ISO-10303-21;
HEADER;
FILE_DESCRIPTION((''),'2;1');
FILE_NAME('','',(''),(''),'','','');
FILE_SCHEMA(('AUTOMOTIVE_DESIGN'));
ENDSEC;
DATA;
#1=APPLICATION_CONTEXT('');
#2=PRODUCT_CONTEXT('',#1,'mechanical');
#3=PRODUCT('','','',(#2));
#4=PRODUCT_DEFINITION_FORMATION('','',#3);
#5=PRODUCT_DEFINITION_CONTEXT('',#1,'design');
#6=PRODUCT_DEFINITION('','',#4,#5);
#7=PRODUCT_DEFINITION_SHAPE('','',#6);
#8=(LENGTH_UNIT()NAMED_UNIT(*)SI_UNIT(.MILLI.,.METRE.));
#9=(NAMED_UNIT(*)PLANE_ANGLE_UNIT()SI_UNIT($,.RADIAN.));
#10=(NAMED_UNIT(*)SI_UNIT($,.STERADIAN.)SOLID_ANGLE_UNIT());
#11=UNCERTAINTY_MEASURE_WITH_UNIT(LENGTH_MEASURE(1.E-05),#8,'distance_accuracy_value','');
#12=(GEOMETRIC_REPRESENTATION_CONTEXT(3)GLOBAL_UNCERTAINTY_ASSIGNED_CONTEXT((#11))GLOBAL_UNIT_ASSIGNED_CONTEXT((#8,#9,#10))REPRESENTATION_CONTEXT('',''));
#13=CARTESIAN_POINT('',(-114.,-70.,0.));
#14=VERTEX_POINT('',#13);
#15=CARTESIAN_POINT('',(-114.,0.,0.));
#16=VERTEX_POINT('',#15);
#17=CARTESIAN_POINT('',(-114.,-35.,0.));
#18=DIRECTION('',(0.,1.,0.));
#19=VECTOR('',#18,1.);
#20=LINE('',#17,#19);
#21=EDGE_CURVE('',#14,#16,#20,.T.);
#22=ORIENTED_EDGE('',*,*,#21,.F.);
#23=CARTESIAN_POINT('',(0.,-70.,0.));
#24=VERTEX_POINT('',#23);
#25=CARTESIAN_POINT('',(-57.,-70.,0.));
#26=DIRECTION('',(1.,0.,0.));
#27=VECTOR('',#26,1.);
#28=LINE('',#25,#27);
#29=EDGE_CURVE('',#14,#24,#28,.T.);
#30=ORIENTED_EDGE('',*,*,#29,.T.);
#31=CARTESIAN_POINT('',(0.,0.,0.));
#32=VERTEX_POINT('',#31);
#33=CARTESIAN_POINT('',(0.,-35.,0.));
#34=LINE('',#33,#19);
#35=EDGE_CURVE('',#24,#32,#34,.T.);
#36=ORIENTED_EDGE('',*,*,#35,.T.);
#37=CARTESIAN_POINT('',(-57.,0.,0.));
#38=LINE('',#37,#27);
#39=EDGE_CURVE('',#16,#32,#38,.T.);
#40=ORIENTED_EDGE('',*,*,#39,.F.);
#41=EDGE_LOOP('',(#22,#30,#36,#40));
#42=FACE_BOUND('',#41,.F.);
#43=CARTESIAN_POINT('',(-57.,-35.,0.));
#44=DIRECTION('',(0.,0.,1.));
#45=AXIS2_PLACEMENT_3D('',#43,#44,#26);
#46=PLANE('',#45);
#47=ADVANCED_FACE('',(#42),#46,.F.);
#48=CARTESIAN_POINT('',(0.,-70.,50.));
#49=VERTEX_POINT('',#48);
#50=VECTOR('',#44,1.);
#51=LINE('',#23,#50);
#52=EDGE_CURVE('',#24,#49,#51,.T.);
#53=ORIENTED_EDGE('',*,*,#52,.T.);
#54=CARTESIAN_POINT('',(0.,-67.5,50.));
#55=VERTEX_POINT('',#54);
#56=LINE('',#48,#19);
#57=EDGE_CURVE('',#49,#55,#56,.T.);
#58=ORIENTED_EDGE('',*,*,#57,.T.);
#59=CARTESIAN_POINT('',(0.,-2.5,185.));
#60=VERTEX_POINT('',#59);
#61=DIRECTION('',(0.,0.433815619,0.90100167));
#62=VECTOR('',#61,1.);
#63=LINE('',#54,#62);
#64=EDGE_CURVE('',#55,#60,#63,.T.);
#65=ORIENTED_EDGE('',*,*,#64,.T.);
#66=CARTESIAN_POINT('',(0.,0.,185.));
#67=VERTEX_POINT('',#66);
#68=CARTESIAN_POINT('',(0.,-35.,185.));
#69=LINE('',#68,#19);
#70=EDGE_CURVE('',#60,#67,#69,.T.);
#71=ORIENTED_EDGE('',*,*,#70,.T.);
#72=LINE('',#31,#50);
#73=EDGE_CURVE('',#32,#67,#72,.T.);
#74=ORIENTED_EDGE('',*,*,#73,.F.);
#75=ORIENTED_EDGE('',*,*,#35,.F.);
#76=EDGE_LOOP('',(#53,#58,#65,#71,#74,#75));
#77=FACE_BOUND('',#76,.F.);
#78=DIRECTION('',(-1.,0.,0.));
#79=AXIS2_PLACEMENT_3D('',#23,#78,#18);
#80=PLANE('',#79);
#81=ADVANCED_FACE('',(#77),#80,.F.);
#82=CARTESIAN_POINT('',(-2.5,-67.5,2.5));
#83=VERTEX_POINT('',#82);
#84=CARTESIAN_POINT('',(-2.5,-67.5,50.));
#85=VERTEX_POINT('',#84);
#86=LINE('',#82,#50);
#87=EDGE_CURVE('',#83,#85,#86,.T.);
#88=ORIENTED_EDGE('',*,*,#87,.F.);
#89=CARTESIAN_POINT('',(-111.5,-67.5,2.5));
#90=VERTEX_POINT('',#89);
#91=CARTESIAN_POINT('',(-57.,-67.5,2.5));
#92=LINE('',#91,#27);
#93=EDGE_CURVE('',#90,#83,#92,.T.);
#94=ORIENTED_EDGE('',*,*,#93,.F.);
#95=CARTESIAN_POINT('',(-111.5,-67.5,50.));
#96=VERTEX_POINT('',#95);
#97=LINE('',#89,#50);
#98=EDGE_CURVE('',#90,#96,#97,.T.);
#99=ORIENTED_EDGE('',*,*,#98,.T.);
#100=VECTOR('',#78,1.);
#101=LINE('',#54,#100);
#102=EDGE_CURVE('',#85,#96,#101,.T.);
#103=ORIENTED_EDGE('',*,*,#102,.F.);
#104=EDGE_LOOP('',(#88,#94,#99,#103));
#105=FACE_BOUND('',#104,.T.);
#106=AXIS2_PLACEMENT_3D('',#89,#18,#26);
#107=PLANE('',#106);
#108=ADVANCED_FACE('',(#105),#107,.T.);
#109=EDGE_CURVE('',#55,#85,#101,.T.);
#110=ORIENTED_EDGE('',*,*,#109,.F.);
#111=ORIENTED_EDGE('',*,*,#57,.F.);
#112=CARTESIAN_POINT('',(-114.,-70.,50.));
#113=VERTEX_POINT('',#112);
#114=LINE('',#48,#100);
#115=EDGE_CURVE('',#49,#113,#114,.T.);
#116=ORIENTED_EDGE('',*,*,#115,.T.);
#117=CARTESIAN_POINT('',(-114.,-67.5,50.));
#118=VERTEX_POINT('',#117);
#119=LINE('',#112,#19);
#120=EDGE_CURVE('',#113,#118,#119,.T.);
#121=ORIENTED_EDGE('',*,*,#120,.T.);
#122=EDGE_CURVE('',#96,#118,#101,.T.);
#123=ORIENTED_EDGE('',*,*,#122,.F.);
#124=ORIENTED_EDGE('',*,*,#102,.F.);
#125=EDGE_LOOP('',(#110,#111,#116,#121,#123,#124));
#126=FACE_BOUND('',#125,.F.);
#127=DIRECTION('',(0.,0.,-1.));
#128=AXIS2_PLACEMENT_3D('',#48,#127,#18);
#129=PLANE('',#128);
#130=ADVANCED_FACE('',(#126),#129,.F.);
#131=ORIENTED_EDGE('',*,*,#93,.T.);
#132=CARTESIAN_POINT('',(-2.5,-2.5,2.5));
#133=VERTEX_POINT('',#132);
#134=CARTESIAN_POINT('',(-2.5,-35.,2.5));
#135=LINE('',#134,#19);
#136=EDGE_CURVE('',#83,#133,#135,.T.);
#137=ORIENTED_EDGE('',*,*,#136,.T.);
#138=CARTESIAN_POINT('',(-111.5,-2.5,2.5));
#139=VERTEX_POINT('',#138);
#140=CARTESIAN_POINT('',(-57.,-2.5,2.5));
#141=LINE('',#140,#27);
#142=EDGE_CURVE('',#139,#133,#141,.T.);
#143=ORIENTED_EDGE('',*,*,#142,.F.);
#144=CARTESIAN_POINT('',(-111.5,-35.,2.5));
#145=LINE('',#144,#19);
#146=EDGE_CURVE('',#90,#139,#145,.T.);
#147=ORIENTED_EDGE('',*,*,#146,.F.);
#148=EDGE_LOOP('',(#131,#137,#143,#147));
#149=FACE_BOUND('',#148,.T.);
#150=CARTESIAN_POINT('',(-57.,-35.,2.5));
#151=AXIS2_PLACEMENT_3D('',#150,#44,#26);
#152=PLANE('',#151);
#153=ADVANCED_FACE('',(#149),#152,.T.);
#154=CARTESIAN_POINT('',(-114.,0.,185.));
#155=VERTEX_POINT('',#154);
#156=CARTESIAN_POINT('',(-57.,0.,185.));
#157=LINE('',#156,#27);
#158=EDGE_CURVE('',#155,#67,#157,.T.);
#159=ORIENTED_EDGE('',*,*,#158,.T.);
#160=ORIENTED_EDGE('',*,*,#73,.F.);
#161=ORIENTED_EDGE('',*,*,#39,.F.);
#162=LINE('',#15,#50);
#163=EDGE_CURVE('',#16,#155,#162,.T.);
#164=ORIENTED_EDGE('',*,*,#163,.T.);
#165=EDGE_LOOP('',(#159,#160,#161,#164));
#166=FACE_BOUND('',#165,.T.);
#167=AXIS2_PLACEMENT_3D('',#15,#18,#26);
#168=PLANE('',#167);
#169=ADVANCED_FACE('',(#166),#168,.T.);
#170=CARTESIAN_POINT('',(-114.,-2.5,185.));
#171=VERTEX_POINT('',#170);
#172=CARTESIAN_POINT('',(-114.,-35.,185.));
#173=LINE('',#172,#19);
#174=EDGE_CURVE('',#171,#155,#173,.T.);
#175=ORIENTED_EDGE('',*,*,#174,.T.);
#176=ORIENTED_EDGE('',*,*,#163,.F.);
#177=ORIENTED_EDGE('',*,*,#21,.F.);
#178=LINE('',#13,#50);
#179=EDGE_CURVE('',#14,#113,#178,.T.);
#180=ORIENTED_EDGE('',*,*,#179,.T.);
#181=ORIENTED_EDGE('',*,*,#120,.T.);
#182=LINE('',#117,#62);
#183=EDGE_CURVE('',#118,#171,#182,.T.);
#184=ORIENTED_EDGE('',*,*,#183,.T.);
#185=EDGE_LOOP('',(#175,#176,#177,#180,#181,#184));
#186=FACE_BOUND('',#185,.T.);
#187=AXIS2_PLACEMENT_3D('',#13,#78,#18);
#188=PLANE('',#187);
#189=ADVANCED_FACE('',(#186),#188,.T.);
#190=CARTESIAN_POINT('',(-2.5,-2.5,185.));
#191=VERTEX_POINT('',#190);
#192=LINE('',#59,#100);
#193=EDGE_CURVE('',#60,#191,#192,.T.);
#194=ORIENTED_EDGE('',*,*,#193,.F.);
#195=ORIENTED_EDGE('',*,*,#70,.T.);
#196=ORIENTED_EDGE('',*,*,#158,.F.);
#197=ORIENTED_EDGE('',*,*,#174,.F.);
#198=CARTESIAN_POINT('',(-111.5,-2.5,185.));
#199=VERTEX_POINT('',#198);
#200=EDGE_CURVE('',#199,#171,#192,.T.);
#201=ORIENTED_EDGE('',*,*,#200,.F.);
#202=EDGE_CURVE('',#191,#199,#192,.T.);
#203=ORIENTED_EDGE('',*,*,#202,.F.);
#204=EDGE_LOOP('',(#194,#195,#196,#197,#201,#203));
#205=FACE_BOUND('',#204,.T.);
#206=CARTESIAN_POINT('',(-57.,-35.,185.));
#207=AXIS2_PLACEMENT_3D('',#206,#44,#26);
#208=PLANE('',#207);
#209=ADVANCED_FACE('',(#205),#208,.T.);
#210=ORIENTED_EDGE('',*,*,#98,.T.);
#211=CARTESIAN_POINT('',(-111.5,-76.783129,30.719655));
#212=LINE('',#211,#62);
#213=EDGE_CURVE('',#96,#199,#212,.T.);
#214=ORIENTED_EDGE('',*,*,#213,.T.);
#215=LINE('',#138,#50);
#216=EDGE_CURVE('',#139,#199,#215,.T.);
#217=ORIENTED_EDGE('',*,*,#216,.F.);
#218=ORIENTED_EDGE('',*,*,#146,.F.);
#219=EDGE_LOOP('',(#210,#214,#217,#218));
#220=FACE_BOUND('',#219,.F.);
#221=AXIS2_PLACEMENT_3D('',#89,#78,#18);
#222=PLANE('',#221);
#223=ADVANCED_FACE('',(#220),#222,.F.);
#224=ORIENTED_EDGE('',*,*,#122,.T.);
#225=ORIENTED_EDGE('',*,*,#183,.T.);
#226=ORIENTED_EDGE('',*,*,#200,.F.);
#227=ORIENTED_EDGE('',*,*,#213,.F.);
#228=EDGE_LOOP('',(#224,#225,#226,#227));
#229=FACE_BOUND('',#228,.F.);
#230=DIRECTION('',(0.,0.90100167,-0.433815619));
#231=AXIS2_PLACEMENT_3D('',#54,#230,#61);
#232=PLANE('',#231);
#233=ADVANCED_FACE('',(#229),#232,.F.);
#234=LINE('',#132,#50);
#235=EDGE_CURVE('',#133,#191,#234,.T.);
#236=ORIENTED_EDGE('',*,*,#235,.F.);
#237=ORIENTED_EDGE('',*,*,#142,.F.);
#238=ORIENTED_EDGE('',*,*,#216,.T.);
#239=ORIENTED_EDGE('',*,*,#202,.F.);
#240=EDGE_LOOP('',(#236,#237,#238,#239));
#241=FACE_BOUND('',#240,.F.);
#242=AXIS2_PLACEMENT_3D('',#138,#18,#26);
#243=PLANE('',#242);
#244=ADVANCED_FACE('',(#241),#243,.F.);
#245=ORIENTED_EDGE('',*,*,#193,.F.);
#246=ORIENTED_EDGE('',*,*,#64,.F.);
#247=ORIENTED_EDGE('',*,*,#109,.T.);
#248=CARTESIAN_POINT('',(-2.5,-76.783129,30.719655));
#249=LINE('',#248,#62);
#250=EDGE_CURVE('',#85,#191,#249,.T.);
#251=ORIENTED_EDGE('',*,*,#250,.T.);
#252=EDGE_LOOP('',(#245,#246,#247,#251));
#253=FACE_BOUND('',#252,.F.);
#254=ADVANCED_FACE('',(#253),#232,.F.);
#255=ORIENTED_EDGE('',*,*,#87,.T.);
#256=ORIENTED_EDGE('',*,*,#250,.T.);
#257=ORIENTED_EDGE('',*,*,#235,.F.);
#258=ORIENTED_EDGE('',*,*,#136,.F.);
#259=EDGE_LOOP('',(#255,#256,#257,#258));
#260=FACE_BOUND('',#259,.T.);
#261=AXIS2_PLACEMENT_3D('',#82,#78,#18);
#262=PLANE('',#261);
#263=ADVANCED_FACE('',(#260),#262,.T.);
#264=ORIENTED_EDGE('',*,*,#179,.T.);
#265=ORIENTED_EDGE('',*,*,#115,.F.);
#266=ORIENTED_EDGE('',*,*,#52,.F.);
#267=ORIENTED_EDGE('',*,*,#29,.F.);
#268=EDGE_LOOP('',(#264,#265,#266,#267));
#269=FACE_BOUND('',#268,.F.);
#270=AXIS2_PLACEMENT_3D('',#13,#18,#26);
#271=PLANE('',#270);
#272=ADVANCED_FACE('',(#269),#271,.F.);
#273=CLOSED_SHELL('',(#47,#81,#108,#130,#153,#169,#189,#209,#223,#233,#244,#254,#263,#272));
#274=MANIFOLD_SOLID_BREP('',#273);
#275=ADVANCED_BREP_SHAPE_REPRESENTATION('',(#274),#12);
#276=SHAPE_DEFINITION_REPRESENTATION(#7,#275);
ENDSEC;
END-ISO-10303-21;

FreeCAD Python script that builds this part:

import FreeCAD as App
import Part
import Sketcher
from FreeCAD import Vector
Q = App.Units.Quantity


def add_polygon(sketch, points):
    """Adds a closed chain of lines whose ends are joined by coincident constraints."""
    first, n = sketch.GeometryCount, len(points)
    for a, b in zip(points, points[1:] + points[:1]):
        sketch.addGeometry(Part.LineSegment(App.Vector(*a, 0), App.Vector(*b, 0)), False)
    for i in range(n):
        sketch.addConstraint(Sketcher.Constraint("Coincident", first + i, 2, first + (i + 1) % n, 1))

doc = App.newDocument("Part")
body = doc.addObject("PartDesign::Body", "Body")

sketch1 = body.newObject("Sketcher::SketchObject", "Sketch")
sketch1.AttachmentSupport = (doc.getObject("XY_Plane"), [""])
sketch1.MapMode = "FlatFace"
add_polygon(sketch1, [(-114, 0), (-114, -70), (0, -70), (0, 0)])
sketch1.addConstraint(Sketcher.Constraint("Vertical", 0))
sketch1.addConstraint(Sketcher.Constraint("Horizontal", 1))
sketch1.addConstraint(Sketcher.Constraint("Vertical", 2))
sketch1.addConstraint(Sketcher.Constraint("Horizontal", 3))
sketch1.addConstraint(Sketcher.Constraint("Coincident", 2, 2, -1, 1))
sketch1.addConstraint(Sketcher.Constraint("DistanceX", 1, 1, 1, 2, Q("114 mm")))
sketch1.addConstraint(Sketcher.Constraint("DistanceY", 0, 2, 0, 1, Q("70 mm")))
pad1 = body.newObject("PartDesign::Pad", "Pad")
pad1.Profile = sketch1
pad1.Length = 185

sketch2 = body.newObject("Sketcher::SketchObject", "Sketch001")
sketch2.AttachmentSupport = (doc.getObject("YZ_Plane"), [""])
sketch2.MapMode = "FlatFace"
add_polygon(sketch2, [(-70, 185), (-70, 50), (-67.5, 50), (-2.5, 185)])
sketch2.addConstraint(Sketcher.Constraint("Vertical", 0))
sketch2.addConstraint(Sketcher.Constraint("Horizontal", 1))
sketch2.addConstraint(Sketcher.Constraint("Horizontal", 3))
sketch2.addConstraint(Sketcher.Constraint("DistanceY", 0, 2, 0, 1, Q("135 mm")))
sketch2.addConstraint(Sketcher.Constraint("DistanceX", 1, 1, 1, 2, Q("2.5 mm")))
sketch2.addConstraint(Sketcher.Constraint("DistanceX", 3, 2, 3, 1, Q("67.5 mm")))
sketch2.addConstraint(Sketcher.Constraint("DistanceX", 0, 2, -1, 1, Q("70 mm")))
sketch2.addConstraint(Sketcher.Constraint("DistanceY", -1, 1, 0, 2, Q("50 mm")))
pocket1 = body.newObject("PartDesign::Pocket", "Pocket")
pocket1.Profile = sketch2
pocket1.Type = "ThroughAll"

sketch3 = body.newObject("Sketcher::SketchObject", "Sketch002")
sketch3.AttachmentSupport = (doc.getObject("XY_Plane"), [""])
sketch3.MapMode = "FlatFace"
sketch3.AttachmentOffset = App.Placement(Vector(0, 0, 2.5), App.Rotation())
add_polygon(sketch3, [(-111.5, -2.5), (-111.5, -67.5), (-2.5, -67.5), (-2.5, -2.5)])
sketch3.addConstraint(Sketcher.Constraint("Vertical", 0))
sketch3.addConstraint(Sketcher.Constraint("Horizontal", 1))
sketch3.addConstraint(Sketcher.Constraint("Vertical", 2))
sketch3.addConstraint(Sketcher.Constraint("Horizontal", 3))
sketch3.addConstraint(Sketcher.Constraint("DistanceX", 1, 1, 1, 2, Q("109 mm")))
sketch3.addConstraint(Sketcher.Constraint("DistanceY", 0, 2, 0, 1, Q("65 mm")))
sketch3.addConstraint(Sketcher.Constraint("DistanceX", 0, 2, -1, 1, Q("111.5 mm")))
sketch3.addConstraint(Sketcher.Constraint("DistanceY", 0, 2, -1, 1, Q("67.5 mm")))
pocket2 = body.newObject("PartDesign::Pocket", "Pocket001")
pocket2.Profile = sketch3
pocket2.Type = "ThroughAll"
pocket2.Reversed = True

doc.recompute()
